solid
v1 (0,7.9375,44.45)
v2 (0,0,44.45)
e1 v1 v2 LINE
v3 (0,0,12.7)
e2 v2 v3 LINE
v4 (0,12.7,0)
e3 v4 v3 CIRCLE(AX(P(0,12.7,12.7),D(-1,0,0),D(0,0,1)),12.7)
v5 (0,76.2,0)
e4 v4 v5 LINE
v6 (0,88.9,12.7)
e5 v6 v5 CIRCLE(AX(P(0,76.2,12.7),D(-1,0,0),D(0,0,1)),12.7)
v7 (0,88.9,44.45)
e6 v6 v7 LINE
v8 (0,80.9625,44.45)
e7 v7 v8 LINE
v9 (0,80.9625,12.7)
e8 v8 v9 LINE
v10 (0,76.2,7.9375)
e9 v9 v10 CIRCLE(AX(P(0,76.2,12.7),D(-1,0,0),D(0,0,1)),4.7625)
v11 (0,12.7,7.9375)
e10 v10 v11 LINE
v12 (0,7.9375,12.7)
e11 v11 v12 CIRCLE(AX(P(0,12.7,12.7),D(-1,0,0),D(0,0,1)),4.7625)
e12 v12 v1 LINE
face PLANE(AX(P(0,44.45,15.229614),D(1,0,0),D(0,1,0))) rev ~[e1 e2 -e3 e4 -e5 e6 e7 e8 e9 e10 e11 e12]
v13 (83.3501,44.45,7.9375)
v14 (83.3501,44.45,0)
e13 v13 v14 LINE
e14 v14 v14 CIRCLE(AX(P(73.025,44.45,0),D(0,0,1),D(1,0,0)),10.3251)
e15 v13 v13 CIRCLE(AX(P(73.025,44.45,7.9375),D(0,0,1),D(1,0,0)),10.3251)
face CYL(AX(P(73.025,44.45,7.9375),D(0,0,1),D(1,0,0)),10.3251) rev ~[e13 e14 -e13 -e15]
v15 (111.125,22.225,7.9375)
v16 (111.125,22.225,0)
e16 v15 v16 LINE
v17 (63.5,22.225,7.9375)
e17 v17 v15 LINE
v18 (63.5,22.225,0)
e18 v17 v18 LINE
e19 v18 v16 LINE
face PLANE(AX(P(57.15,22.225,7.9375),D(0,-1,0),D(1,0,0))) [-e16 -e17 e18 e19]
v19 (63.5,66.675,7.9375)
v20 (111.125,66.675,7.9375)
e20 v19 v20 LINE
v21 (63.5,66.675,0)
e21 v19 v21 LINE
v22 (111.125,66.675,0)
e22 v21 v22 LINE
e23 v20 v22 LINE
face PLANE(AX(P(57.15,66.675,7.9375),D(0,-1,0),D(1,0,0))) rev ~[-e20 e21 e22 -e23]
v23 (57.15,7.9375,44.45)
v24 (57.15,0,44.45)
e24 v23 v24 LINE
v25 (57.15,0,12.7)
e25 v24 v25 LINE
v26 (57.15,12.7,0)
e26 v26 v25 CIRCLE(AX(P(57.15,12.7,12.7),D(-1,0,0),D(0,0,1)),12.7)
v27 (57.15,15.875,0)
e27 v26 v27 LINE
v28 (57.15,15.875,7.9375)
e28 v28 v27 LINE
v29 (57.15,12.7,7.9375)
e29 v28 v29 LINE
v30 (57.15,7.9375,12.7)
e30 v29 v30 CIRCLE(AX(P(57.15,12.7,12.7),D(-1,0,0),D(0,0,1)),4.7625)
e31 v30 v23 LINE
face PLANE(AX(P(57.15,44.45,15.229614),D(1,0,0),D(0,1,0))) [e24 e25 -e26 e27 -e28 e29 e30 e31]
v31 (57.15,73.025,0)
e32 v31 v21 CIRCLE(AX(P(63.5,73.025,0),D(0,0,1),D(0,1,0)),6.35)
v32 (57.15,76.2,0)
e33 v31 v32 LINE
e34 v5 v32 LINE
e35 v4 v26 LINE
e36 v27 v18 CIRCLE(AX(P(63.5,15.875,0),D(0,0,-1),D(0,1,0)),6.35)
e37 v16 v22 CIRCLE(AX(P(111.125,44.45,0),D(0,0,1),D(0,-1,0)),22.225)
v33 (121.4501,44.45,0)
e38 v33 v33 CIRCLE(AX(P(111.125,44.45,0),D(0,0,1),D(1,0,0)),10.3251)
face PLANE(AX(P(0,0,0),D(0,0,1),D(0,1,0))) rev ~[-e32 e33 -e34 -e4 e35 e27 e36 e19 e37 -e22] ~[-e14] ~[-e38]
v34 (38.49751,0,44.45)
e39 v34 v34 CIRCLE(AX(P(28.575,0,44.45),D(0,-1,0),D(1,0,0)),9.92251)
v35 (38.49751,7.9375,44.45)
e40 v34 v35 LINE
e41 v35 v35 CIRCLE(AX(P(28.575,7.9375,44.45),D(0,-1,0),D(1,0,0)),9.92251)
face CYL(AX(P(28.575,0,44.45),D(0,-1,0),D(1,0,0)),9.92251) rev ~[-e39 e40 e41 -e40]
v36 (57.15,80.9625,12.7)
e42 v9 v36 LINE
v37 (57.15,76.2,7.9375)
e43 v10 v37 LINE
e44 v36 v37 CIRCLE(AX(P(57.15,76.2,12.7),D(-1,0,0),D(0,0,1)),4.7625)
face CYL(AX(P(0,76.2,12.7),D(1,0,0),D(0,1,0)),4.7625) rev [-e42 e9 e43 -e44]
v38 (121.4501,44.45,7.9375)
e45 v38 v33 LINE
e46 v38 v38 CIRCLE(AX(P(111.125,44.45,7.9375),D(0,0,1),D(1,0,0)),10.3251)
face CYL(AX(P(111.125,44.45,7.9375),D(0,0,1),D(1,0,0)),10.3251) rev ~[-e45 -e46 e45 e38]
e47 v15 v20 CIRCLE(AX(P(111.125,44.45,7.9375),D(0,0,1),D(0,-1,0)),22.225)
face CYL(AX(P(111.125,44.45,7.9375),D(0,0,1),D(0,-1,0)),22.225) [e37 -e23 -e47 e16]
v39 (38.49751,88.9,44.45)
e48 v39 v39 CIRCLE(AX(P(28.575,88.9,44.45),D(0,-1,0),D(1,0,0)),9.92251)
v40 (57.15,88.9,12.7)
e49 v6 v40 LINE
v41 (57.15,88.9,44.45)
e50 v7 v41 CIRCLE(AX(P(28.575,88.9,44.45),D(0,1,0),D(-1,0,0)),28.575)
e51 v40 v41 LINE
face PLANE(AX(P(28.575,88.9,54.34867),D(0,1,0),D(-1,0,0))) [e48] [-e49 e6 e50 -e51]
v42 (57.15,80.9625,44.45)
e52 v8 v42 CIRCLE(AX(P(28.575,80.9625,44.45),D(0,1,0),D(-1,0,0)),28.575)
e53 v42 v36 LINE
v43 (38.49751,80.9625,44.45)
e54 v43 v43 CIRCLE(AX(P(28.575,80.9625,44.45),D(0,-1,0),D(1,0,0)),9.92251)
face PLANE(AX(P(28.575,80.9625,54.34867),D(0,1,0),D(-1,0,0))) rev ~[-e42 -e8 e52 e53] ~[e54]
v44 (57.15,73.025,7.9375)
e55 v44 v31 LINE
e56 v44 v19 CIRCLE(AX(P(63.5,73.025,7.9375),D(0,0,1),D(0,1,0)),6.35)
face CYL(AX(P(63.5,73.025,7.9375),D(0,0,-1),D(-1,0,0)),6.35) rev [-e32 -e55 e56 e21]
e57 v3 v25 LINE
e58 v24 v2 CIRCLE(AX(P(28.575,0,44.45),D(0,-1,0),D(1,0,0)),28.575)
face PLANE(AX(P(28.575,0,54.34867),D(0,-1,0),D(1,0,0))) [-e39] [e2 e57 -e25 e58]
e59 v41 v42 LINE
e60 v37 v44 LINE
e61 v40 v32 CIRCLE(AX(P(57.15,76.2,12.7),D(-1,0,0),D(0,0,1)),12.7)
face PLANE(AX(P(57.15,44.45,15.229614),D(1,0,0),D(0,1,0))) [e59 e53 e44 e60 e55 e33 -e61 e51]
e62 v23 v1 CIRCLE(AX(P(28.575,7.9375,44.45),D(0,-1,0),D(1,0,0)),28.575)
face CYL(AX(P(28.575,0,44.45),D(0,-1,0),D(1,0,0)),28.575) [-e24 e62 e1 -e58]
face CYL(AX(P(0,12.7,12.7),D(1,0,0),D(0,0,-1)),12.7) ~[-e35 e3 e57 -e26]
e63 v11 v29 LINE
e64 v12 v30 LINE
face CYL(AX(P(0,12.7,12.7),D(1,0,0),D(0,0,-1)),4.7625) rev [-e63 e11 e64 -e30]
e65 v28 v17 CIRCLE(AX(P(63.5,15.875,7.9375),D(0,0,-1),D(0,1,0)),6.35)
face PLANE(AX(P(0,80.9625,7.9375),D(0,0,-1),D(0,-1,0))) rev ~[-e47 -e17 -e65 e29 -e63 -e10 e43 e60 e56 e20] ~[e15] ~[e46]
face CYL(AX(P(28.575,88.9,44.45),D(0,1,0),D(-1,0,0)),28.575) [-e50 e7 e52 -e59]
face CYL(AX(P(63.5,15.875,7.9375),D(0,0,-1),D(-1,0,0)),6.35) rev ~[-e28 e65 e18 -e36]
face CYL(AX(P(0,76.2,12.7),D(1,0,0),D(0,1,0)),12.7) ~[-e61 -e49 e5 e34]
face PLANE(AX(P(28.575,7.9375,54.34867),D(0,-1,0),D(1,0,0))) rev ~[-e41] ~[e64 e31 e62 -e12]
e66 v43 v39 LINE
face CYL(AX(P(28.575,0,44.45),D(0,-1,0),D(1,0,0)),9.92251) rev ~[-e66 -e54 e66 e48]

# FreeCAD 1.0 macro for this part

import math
import FreeCAD as App
import Part
import Sketcher

V = App.Vector
Q = App.Units.Quantity


def edges_at(feature, points):
    """Names of the edges that pass closest to the given points."""
    edges = feature.Shape.Edges
    near = lambda p: min(range(len(edges)), key=lambda i: edges[i].distToShape(Part.Vertex(*p))[0])
    return sorted({f"Edge{near(p) + 1}" for p in points})


def add_polygon(sketch, points):
    """Adds a closed chain of lines whose ends are joined by coincident constraints."""
    first, n = sketch.GeometryCount, len(points)
    for a, b in zip(points, points[1:] + points[:1]):
        sketch.addGeometry(Part.LineSegment(App.Vector(*a, 0), App.Vector(*b, 0)), False)
    for i in range(n):
        sketch.addConstraint(Sketcher.Constraint("Coincident", first + i, 2, first + (i + 1) % n, 1))

doc = App.newDocument("Part")
body = doc.addObject("PartDesign::Body", "Body")

# Sketch on YZ plane
sketch1 = body.newObject("Sketcher::SketchObject", "Sketch")
sketch1.AttachmentSupport = (doc.getObject("YZ_Plane"), [""])
sketch1.MapMode = "FlatFace"
add_polygon(sketch1, [(0, 44), (0, 0), (89, 0), (89, 44), (81, 44), (81, 8), (8, 8), (8, 44)])  # lines 0-7
sketch1.addConstraint([
    Sketcher.Constraint("Vertical", 0),
    Sketcher.Constraint("Horizontal", 1),
    Sketcher.Constraint("Vertical", 2),
    Sketcher.Constraint("Horizontal", 3),
    Sketcher.Constraint("Vertical", 4),
    Sketcher.Constraint("Horizontal", 5),
    Sketcher.Constraint("Vertical", 6),
    Sketcher.Constraint("Horizontal", 7),
    Sketcher.Constraint("Coincident", 0, 2, -1, 1),
    Sketcher.Constraint("Horizontal", 3, 2, 6, 2),
    Sketcher.Constraint("Equal", 3, 7),
    Sketcher.Constraint("DistanceX", 1, 1, 1, 2, Q("3.5 in")),
    Sketcher.Constraint("DistanceY", 0, 2, 0, 1, Q("1.75 in")),
    Sketcher.Constraint("DistanceX", 3, 2, 3, 1, Q("0.3125 in")),
    Sketcher.Constraint("DistanceY", 4, 2, 4, 1, Q("1.4375 in")),
])
pad1 = body.newObject("PartDesign::Pad", "Pad")
pad1.Profile = sketch1
pad1.Length = Q("2.25 in")

# Sketch on XZ plane
sketch2 = body.newObject("Sketcher::SketchObject", "Sketch001")
sketch2.AttachmentSupport = (doc.getObject("XZ_Plane"), [""])
sketch2.MapMode = "FlatFace"
sketch2.addGeometry([
    Part.LineSegment(V(0, 44, 0), V(57, 44, 0)),
    Part.ArcOfCircle(Part.Circle(V(29, 44, 0), V(0, 0, 1), 29), math.radians(0), math.radians(180)),
], False)
sketch2.addConstraint([
    Sketcher.Constraint("Coincident", 0, 1, 1, 2),
    Sketcher.Constraint("Coincident", 1, 1, 0, 2),
    Sketcher.Constraint("Horizontal", 0),
    Sketcher.Constraint("PointOnObject", 0, 1, -2),
    Sketcher.Constraint("Horizontal", 1, 3, 0, 1),
    Sketcher.Constraint("Radius", 1, Q("1.125 in")),
    Sketcher.Constraint("DistanceY", -1, 1, 1, 3, Q("1.75 in")),
])
pad2 = body.newObject("PartDesign::Pad", "Pad001")
pad2.Profile = sketch2
pad2.Length = Q("0.3125 in")
pad2.Reversed = True

# Sketch on XZ plane
sketch3 = body.newObject("Sketcher::SketchObject", "Sketch002")
sketch3.AttachmentSupport = (doc.getObject("XZ_Plane"), [""])
sketch3.MapMode = "FlatFace"
sketch3.AttachmentOffset = App.Placement(V(0, 0, -3.5 * 25.4), App.Rotation())
sketch3.addGeometry([
    Part.LineSegment(V(57, 44, 0), V(0, 44, 0)),
    Part.ArcOfCircle(Part.Circle(V(29, 44, 0), V(0, 0, 1), 29), math.radians(0), math.radians(180)),
], False)
sketch3.addConstraint([
    Sketcher.Constraint("Coincident", 0, 1, 1, 1),
    Sketcher.Constraint("Coincident", 1, 2, 0, 2),
    Sketcher.Constraint("Horizontal", 0),
    Sketcher.Constraint("PointOnObject", 1, 2, -2),
    Sketcher.Constraint("Horizontal", 1, 3, 0, 1),
    Sketcher.Constraint("Radius", 1, Q("1.125 in")),
    Sketcher.Constraint("DistanceY", -1, 1, 1, 3, Q("1.75 in")),
])
pad3 = body.newObject("PartDesign::Pad", "Pad002")
pad3.Profile = sketch3
pad3.Length = Q("0.3125 in")

# Sketch on XZ plane
sketch4 = body.newObject("Sketcher::SketchObject", "Sketch003")
sketch4.AttachmentSupport = (doc.getObject("XZ_Plane"), [""])
sketch4.MapMode = "FlatFace"
sketch4.addGeometry(Part.Circle(V(29, 44, 0), V(0, 0, 1), 10), False)
sketch4.addConstraint([
    Sketcher.Constraint("Diameter", 0, Q("0.7813 in")),
    Sketcher.Constraint("DistanceY", -1, 1, 0, 3, Q("1.75 in")),
    Sketcher.Constraint("DistanceX", -1, 1, 0, 3, Q("1.125 in")),
])
pocket1 = body.newObject("PartDesign::Pocket", "Pocket")
pocket1.Profile = sketch4
pocket1.Type = "ThroughAll"

# Sketch on XY plane
sketch5 = body.newObject("Sketcher::SketchObject", "Sketch004")
sketch5.AttachmentSupport = (doc.getObject("XY_Plane"), [""])
sketch5.MapMode = "FlatFace"
sketch5.AttachmentOffset = App.Placement(V(0, 0, 0.3125 * 25.4), App.Rotation())
sketch5.addGeometry([
    Part.LineSegment(V(57, 67, 0), V(57, 22, 0)),
    Part.LineSegment(V(57, 22, 0), V(111, 22, 0)),
    Part.ArcOfCircle(Part.Circle(V(111, 44, 0), V(0, 0, 1), 22), math.radians(-90), math.radians(90)),
    Part.LineSegment(V(111, 67, 0), V(57, 67, 0)),
], False)
sketch5.addConstraint([
    Sketcher.Constraint("Coincident", 0, 2, 1, 1),
    Sketcher.Constraint("Tangent", 1, 2, 2, 1),
    Sketcher.Constraint("Tangent", 2, 2, 3, 1),
    Sketcher.Constraint("Coincident", 3, 2, 0, 1),
    Sketcher.Constraint("Vertical", 0),
    Sketcher.Constraint("Horizontal", 1),
    Sketcher.Constraint("Horizontal", 3),
    Sketcher.Constraint("Radius", 2, Q("0.875 in")),
    Sketcher.Constraint("DistanceX", 1, 1, 1, 2, Q("2.125 in")),
    Sketcher.Constraint("DistanceY", -1, 1, 2, 3, Q("1.75 in")),
    Sketcher.Constraint("DistanceX", -1, 1, 0, 2, Q("2.25 in")),
])
pad4 = body.newObject("PartDesign::Pad", "Pad003")
pad4.Profile = sketch5
pad4.Length = Q("0.3125 in")
pad4.Reversed = True

# Sketch on XY plane
sketch6 = body.newObject("Sketcher::SketchObject", "Sketch005")
sketch6.AttachmentSupport = (doc.getObject("XY_Plane"), [""])
sketch6.MapMode = "FlatFace"
sketch6.AttachmentOffset = App.Placement(V(0, 0, 0.3125 * 25.4), App.Rotation())
sketch6.addGeometry([
    Part.Circle(V(73, 44, 0), V(0, 0, 1), 10),
    Part.Circle(V(111, 44, 0), V(0, 0, 1), 10),
], False)
sketch6.addConstraint([
    Sketcher.Constraint("Equal", 0, 1),
    Sketcher.Constraint("Horizontal", 0, 3, 1, 3),
    Sketcher.Constraint("Diameter", 0, Q("0.813 in")),
    Sketcher.Constraint("DistanceX", 0, 3, 1, 3, Q("1.5 in")),
    Sketcher.Constraint("DistanceY", -1, 1, 0, 3, Q("1.75 in")),
    Sketcher.Constraint("DistanceX", -1, 1, 0, 3, Q("2.875 in")),
])
pocket2 = body.newObject("PartDesign::Pocket", "Pocket001")
pocket2.Profile = sketch6
pocket2.Type = "ThroughAll"
doc.recompute()

fillet = body.newObject("PartDesign::Fillet", "Fillet")
fillet.Base = (pocket2, edges_at(pocket2, [(28.575, 80.963, 7.938), (28.575, 7.938, 7.938)]))
fillet.Radius = Q("0.1875 in")
doc.recompute()

fillet2 = body.newObject("PartDesign::Fillet", "Fillet001")
fillet2.Base = (fillet, edges_at(fillet, [(28.575, 0, 0), (28.575, 88.9, 0)]))
fillet2.Radius = Q("0.5 in")
doc.recompute()

fillet3 = body.newObject("PartDesign::Fillet", "Fillet002")
fillet3.Base = (fillet2, edges_at(fillet2, [(57.15, 66.675, 3.969), (57.15, 22.225, 3.969)]))
fillet3.Radius = Q("0.25 in")

doc.recompute()
